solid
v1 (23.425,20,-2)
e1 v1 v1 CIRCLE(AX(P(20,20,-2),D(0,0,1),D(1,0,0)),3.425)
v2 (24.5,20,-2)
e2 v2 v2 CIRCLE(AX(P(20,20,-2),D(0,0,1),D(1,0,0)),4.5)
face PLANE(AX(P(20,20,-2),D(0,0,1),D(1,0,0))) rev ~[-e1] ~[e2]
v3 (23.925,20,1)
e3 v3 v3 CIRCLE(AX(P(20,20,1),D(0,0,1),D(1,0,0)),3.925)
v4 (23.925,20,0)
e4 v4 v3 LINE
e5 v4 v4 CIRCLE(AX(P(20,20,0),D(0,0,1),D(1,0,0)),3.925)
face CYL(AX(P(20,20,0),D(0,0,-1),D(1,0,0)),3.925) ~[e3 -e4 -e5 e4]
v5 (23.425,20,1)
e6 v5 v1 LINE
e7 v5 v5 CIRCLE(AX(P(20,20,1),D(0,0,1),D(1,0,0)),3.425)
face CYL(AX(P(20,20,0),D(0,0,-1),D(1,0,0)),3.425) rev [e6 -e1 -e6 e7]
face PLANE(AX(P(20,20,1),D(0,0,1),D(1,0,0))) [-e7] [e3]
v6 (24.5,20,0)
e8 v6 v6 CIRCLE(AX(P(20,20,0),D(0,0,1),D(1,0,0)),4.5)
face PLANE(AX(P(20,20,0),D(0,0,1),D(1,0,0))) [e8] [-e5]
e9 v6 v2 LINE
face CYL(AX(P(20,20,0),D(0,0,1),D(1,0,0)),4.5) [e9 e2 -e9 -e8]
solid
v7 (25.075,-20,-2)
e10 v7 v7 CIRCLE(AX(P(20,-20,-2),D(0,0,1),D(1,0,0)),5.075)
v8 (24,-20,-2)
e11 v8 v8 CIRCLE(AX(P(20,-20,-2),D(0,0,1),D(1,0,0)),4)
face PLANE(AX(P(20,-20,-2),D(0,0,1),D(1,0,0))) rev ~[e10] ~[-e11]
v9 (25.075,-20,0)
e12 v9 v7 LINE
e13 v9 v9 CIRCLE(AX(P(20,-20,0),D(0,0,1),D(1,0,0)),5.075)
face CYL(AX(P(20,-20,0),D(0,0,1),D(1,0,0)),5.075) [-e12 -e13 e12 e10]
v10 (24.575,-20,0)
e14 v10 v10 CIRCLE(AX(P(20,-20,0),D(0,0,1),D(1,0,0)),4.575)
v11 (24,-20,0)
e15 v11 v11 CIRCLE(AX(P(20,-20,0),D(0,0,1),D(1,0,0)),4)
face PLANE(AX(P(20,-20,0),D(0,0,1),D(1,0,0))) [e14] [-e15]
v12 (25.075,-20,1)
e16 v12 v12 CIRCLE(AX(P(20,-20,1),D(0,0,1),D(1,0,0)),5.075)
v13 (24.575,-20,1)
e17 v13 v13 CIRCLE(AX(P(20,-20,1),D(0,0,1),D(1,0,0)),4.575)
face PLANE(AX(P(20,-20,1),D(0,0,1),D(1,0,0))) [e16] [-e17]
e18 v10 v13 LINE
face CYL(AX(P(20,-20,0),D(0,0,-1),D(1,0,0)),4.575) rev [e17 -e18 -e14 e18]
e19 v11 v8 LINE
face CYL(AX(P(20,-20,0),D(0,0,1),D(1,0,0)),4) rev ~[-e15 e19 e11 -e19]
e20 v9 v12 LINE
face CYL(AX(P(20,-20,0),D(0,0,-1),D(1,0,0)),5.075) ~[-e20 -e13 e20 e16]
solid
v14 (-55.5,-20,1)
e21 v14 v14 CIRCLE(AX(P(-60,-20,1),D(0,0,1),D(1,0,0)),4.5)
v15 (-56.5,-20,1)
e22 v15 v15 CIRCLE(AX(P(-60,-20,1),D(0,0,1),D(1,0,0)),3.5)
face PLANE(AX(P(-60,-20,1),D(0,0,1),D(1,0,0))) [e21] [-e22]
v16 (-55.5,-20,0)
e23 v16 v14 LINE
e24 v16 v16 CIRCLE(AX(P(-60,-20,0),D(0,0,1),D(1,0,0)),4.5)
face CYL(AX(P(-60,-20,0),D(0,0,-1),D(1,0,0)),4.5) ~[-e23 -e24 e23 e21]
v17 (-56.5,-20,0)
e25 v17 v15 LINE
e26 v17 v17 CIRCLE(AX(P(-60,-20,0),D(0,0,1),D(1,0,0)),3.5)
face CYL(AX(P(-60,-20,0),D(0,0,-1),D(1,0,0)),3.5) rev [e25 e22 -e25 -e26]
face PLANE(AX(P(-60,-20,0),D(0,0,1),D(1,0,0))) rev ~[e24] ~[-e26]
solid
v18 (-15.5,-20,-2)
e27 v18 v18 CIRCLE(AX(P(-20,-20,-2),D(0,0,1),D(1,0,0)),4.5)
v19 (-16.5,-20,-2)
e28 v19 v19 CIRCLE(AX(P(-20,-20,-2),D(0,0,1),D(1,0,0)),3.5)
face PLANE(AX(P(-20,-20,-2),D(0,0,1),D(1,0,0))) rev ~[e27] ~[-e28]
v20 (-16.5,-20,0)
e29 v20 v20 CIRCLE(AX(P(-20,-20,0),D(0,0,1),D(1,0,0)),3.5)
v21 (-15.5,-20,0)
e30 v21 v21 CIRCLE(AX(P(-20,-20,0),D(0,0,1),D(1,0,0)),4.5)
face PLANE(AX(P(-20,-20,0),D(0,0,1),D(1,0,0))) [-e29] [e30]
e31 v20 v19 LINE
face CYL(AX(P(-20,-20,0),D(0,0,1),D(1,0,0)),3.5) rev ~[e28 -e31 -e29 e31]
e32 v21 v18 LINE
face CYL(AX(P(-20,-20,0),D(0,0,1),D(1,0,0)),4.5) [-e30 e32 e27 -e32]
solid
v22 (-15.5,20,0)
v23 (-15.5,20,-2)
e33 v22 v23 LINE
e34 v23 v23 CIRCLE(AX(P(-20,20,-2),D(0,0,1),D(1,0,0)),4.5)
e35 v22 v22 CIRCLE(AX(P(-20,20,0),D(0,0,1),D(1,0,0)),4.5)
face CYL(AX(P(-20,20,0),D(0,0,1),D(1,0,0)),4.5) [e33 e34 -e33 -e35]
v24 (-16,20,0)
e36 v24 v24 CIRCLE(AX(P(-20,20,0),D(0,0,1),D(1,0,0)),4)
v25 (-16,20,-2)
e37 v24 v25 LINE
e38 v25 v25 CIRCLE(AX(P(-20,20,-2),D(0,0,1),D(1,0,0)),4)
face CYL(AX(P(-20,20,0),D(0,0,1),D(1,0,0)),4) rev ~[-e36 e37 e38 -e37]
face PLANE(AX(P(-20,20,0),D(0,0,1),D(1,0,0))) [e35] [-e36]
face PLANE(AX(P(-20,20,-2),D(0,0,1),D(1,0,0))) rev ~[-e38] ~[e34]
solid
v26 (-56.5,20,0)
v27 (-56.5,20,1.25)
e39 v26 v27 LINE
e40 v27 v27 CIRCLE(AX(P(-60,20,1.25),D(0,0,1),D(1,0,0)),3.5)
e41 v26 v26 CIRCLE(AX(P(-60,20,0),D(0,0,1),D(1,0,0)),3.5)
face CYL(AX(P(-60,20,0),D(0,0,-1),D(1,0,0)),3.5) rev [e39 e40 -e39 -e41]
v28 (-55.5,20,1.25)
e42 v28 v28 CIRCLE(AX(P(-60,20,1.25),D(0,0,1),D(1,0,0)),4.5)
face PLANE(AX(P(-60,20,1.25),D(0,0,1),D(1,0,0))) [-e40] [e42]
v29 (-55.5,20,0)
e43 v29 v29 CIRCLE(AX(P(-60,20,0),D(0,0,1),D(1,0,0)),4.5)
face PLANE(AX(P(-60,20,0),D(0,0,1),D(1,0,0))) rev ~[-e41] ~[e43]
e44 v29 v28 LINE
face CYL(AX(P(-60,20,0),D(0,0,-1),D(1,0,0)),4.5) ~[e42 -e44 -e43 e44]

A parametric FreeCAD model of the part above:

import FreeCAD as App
import Part
import Sketcher
from FreeCAD import Vector
Q = App.Units.Quantity

doc = App.newDocument("Part")
params = doc.addObject("Spreadsheet::Sheet", "Params")
for row, (alias, value) in enumerate([
    ("sketch1_diameter", "9 mm"),
    ("sketch1_diameter2", "8 mm"),
    ("pad1_length", "2 mm"),
    ("sketch2_diameter", "9 mm"),
    ("sketch2_diameter2", "7 mm"),
    ("pad2_length", "2 mm"),
    ("sketch3_diameter", "8 mm"),
    ("sketch3_diameter2", "10.15 mm"),
    ("pad3_length", "2 mm"),
    ("sketch4_diameter", "10.15 mm"),
    ("sketch4_diameter2", "9.15 mm"),
    ("pad4_length", "1 mm"),
    ("sketch5_diameter", "9 mm"),
    ("sketch5_diameter2", "6.85 mm"),
    ("pad5_length", "2 mm"),
    ("sketch6_diameter", "7.85 mm"),
    ("sketch6_diameter2", "6.85 mm"),
    ("pad6_length", "1 mm"),
    ("sketch7_diameter", "9 mm"),
    ("sketch7_diameter2", "7 mm"),
    ("pad7_length", "1.25 mm"),
    ("sketch8_diameter", "9 mm"),
    ("sketch8_diameter2", "7 mm"),
    ("pad8_length", "1 mm"),
], start=1):
    params.set(f"A{row}", alias)
    params.set(f"B{row}", "=" + value)
    params.setAlias(f"B{row}", alias)

body = doc.addObject("PartDesign::Body", "Body")

# Sketch on XY plane
sketch1 = body.newObject("Sketcher::SketchObject", "Sketch")
sketch1.AttachmentSupport = (doc.getObject("XY_Plane"), [""])
sketch1.MapMode = "FlatFace"
sketch1.addGeometry([
    Part.Circle(Vector(-20, 20, 0), Vector(0, 0, 1), 4.5),
    Part.Circle(Vector(-20, 20, 0), Vector(0, 0, 1), 4),
], False)
sketch1.addConstraint([
    Sketcher.Constraint("Coincident", 1, 3, 0, 3),
    Sketcher.Constraint("Diameter", 0, Q("9 mm")),
    Sketcher.Constraint("Diameter", 1, Q("8 mm")),
    Sketcher.Constraint("DistanceX", 0, 3, -1, 1, Q("20 mm")),
    Sketcher.Constraint("DistanceY", -1, 1, 0, 3, Q("20 mm")),
])
sketch1.setExpression("Constraints[1]", "Params.sketch1_diameter")
sketch1.setExpression("Constraints[2]", "Params.sketch1_diameter2")
pad1 = body.newObject("PartDesign::Pad", "Pad")
pad1.Profile = sketch1
pad1.setExpression("Length", "Params.pad1_length")
pad1.Reversed = True
body2 = doc.addObject("PartDesign::Body", "Body001")

# Sketch on XY plane
sketch2 = body2.newObject("Sketcher::SketchObject", "Sketch001")
sketch2.AttachmentSupport = (doc.getObject("XY_Plane001"), [""])
sketch2.MapMode = "FlatFace"
sketch2.addGeometry([
    Part.Circle(Vector(-20, -20, 0), Vector(0, 0, 1), 4.5),
    Part.Circle(Vector(-20, -20, 0), Vector(0, 0, 1), 3.5),
], False)
sketch2.addConstraint([
    Sketcher.Constraint("Coincident", 1, 3, 0, 3),
    Sketcher.Constraint("Diameter", 0, Q("9 mm")),
    Sketcher.Constraint("Diameter", 1, Q("7 mm")),
    Sketcher.Constraint("DistanceX", 0, 3, -1, 1, Q("20 mm")),
    Sketcher.Constraint("DistanceY", 0, 3, -1, 1, Q("20 mm")),
])
sketch2.setExpression("Constraints[1]", "Params.sketch2_diameter")
sketch2.setExpression("Constraints[2]", "Params.sketch2_diameter2")
pad2 = body2.newObject("PartDesign::Pad", "Pad001")
pad2.Profile = sketch2
pad2.setExpression("Length", "Params.pad2_length")
pad2.Reversed = True
body3 = doc.addObject("PartDesign::Body", "Body002")

# Sketch on XY plane
sketch3 = body3.newObject("Sketcher::SketchObject", "Sketch002")
sketch3.AttachmentSupport = (doc.getObject("XY_Plane002"), [""])
sketch3.MapMode = "FlatFace"
sketch3.addGeometry([
    Part.Circle(Vector(20, -20, 0), Vector(0, 0, 1), 5.1),
    Part.Circle(Vector(20, -20, 0), Vector(0, 0, 1), 4),
], False)
sketch3.addConstraint([
    Sketcher.Constraint("Coincident", 1, 3, 0, 3),
    Sketcher.Constraint("Diameter", 1, Q("8 mm")),
    Sketcher.Constraint("Diameter", 0, Q("10.15 mm")),
    Sketcher.Constraint("DistanceX", -1, 1, 0, 3, Q("20 mm")),
    Sketcher.Constraint("DistanceY", 0, 3, -1, 1, Q("20 mm")),
])
sketch3.setExpression("Constraints[1]", "Params.sketch3_diameter")
sketch3.setExpression("Constraints[2]", "Params.sketch3_diameter2")
pad3 = body3.newObject("PartDesign::Pad", "Pad002")
pad3.Profile = sketch3
pad3.setExpression("Length", "Params.pad3_length")
pad3.Reversed = True

# Sketch on XY plane
sketch4 = body3.newObject("Sketcher::SketchObject", "Sketch003")
sketch4.AttachmentSupport = (doc.getObject("XY_Plane002"), [""])
sketch4.MapMode = "FlatFace"
sketch4.addGeometry([
    Part.Circle(Vector(20, -20, 0), Vector(0, 0, 1), 5.1),
    Part.Circle(Vector(20, -20, 0), Vector(0, 0, 1), 4.6),
], False)
sketch4.addConstraint([
    Sketcher.Constraint("Coincident", 1, 3, 0, 3),
    Sketcher.Constraint("Diameter", 0, Q("10.15 mm")),
    Sketcher.Constraint("Diameter", 1, Q("9.15 mm")),
    Sketcher.Constraint("DistanceX", -1, 1, 0, 3, Q("20 mm")),
    Sketcher.Constraint("DistanceY", 0, 3, -1, 1, Q("20 mm")),
])
sketch4.setExpression("Constraints[1]", "Params.sketch4_diameter")
sketch4.setExpression("Constraints[2]", "Params.sketch4_diameter2")
pad4 = body3.newObject("PartDesign::Pad", "Pad003")
pad4.Profile = sketch4
pad4.setExpression("Length", "Params.pad4_length")
body4 = doc.addObject("PartDesign::Body", "Body003")

# Sketch on XY plane
sketch5 = body4.newObject("Sketcher::SketchObject", "Sketch004")
sketch5.AttachmentSupport = (doc.getObject("XY_Plane003"), [""])
sketch5.MapMode = "FlatFace"
sketch5.addGeometry([
    Part.Circle(Vector(20, 20, 0), Vector(0, 0, 1), 4.5),
    Part.Circle(Vector(20, 20, 0), Vector(0, 0, 1), 3.4),
], False)
sketch5.addConstraint([
    Sketcher.Constraint("Coincident", 1, 3, 0, 3),
    Sketcher.Constraint("Diameter", 0, Q("9 mm")),
    Sketcher.Constraint("Diameter", 1, Q("6.85 mm")),
    Sketcher.Constraint("DistanceX", -1, 1, 0, 3, Q("20 mm")),
    Sketcher.Constraint("DistanceY", -1, 1, 0, 3, Q("20 mm")),
])
sketch5.setExpression("Constraints[1]", "Params.sketch5_diameter")
sketch5.setExpression("Constraints[2]", "Params.sketch5_diameter2")
pad5 = body4.newObject("PartDesign::Pad", "Pad004")
pad5.Profile = sketch5
pad5.setExpression("Length", "Params.pad5_length")
pad5.Reversed = True

# Sketch on XY plane
sketch6 = body4.newObject("Sketcher::SketchObject", "Sketch005")
sketch6.AttachmentSupport = (doc.getObject("XY_Plane003"), [""])
sketch6.MapMode = "FlatFace"
sketch6.addGeometry([
    Part.Circle(Vector(20, 20, 0), Vector(0, 0, 1), 3.9),
    Part.Circle(Vector(20, 20, 0), Vector(0, 0, 1), 3.4),
], False)
sketch6.addConstraint([
    Sketcher.Constraint("Coincident", 1, 3, 0, 3),
    Sketcher.Constraint("Diameter", 0, Q("7.85 mm")),
    Sketcher.Constraint("Diameter", 1, Q("6.85 mm")),
    Sketcher.Constraint("DistanceX", -1, 1, 0, 3, Q("20 mm")),
    Sketcher.Constraint("DistanceY", -1, 1, 0, 3, Q("20 mm")),
])
sketch6.setExpression("Constraints[1]", "Params.sketch6_diameter")
sketch6.setExpression("Constraints[2]", "Params.sketch6_diameter2")
pad6 = body4.newObject("PartDesign::Pad", "Pad005")
pad6.Profile = sketch6
pad6.setExpression("Length", "Params.pad6_length")
body5 = doc.addObject("PartDesign::Body", "Body004")

# Sketch on XY plane
sketch7 = body5.newObject("Sketcher::SketchObject", "Sketch006")
sketch7.AttachmentSupport = (doc.getObject("XY_Plane004"), [""])
sketch7.MapMode = "FlatFace"
sketch7.addGeometry([
    Part.Circle(Vector(-60, 20, 0), Vector(0, 0, 1), 4.5),
    Part.Circle(Vector(-60, 20, 0), Vector(0, 0, 1), 3.5),
], False)
sketch7.addConstraint([
    Sketcher.Constraint("Coincident", 1, 3, 0, 3),
    Sketcher.Constraint("Diameter", 0, Q("9 mm")),
    Sketcher.Constraint("Diameter", 1, Q("7 mm")),
    Sketcher.Constraint("DistanceX", 0, 3, -1, 1, Q("60 mm")),
    Sketcher.Constraint("DistanceY", -1, 1, 0, 3, Q("20 mm")),
])
sketch7.setExpression("Constraints[1]", "Params.sketch7_diameter")
sketch7.setExpression("Constraints[2]", "Params.sketch7_diameter2")
pad7 = body5.newObject("PartDesign::Pad", "Pad006")
pad7.Profile = sketch7
pad7.setExpression("Length", "Params.pad7_length")
body6 = doc.addObject("PartDesign::Body", "Body005")

# Sketch on XY plane
sketch8 = body6.newObject("Sketcher::SketchObject", "Sketch007")
sketch8.AttachmentSupport = (doc.getObject("XY_Plane005"), [""])
sketch8.MapMode = "FlatFace"
sketch8.addGeometry([
    Part.Circle(Vector(-60, -20, 0), Vector(0, 0, 1), 4.5),
    Part.Circle(Vector(-60, -20, 0), Vector(0, 0, 1), 3.5),
], False)
sketch8.addConstraint([
    Sketcher.Constraint("Coincident", 1, 3, 0, 3),
    Sketcher.Constraint("Diameter", 0, Q("9 mm")),
    Sketcher.Constraint("Diameter", 1, Q("7 mm")),
    Sketcher.Constraint("DistanceX", 0, 3, -1, 1, Q("60 mm")),
    Sketcher.Constraint("DistanceY", 0, 3, -1, 1, Q("20 mm")),
])
sketch8.setExpression("Constraints[1]", "Params.sketch8_diameter")
sketch8.setExpression("Constraints[2]", "Params.sketch8_diameter2")
pad8 = body6.newObject("PartDesign::Pad", "Pad007")
pad8.Profile = sketch8
pad8.setExpression("Length", "Params.pad8_length")

doc.recompute()
